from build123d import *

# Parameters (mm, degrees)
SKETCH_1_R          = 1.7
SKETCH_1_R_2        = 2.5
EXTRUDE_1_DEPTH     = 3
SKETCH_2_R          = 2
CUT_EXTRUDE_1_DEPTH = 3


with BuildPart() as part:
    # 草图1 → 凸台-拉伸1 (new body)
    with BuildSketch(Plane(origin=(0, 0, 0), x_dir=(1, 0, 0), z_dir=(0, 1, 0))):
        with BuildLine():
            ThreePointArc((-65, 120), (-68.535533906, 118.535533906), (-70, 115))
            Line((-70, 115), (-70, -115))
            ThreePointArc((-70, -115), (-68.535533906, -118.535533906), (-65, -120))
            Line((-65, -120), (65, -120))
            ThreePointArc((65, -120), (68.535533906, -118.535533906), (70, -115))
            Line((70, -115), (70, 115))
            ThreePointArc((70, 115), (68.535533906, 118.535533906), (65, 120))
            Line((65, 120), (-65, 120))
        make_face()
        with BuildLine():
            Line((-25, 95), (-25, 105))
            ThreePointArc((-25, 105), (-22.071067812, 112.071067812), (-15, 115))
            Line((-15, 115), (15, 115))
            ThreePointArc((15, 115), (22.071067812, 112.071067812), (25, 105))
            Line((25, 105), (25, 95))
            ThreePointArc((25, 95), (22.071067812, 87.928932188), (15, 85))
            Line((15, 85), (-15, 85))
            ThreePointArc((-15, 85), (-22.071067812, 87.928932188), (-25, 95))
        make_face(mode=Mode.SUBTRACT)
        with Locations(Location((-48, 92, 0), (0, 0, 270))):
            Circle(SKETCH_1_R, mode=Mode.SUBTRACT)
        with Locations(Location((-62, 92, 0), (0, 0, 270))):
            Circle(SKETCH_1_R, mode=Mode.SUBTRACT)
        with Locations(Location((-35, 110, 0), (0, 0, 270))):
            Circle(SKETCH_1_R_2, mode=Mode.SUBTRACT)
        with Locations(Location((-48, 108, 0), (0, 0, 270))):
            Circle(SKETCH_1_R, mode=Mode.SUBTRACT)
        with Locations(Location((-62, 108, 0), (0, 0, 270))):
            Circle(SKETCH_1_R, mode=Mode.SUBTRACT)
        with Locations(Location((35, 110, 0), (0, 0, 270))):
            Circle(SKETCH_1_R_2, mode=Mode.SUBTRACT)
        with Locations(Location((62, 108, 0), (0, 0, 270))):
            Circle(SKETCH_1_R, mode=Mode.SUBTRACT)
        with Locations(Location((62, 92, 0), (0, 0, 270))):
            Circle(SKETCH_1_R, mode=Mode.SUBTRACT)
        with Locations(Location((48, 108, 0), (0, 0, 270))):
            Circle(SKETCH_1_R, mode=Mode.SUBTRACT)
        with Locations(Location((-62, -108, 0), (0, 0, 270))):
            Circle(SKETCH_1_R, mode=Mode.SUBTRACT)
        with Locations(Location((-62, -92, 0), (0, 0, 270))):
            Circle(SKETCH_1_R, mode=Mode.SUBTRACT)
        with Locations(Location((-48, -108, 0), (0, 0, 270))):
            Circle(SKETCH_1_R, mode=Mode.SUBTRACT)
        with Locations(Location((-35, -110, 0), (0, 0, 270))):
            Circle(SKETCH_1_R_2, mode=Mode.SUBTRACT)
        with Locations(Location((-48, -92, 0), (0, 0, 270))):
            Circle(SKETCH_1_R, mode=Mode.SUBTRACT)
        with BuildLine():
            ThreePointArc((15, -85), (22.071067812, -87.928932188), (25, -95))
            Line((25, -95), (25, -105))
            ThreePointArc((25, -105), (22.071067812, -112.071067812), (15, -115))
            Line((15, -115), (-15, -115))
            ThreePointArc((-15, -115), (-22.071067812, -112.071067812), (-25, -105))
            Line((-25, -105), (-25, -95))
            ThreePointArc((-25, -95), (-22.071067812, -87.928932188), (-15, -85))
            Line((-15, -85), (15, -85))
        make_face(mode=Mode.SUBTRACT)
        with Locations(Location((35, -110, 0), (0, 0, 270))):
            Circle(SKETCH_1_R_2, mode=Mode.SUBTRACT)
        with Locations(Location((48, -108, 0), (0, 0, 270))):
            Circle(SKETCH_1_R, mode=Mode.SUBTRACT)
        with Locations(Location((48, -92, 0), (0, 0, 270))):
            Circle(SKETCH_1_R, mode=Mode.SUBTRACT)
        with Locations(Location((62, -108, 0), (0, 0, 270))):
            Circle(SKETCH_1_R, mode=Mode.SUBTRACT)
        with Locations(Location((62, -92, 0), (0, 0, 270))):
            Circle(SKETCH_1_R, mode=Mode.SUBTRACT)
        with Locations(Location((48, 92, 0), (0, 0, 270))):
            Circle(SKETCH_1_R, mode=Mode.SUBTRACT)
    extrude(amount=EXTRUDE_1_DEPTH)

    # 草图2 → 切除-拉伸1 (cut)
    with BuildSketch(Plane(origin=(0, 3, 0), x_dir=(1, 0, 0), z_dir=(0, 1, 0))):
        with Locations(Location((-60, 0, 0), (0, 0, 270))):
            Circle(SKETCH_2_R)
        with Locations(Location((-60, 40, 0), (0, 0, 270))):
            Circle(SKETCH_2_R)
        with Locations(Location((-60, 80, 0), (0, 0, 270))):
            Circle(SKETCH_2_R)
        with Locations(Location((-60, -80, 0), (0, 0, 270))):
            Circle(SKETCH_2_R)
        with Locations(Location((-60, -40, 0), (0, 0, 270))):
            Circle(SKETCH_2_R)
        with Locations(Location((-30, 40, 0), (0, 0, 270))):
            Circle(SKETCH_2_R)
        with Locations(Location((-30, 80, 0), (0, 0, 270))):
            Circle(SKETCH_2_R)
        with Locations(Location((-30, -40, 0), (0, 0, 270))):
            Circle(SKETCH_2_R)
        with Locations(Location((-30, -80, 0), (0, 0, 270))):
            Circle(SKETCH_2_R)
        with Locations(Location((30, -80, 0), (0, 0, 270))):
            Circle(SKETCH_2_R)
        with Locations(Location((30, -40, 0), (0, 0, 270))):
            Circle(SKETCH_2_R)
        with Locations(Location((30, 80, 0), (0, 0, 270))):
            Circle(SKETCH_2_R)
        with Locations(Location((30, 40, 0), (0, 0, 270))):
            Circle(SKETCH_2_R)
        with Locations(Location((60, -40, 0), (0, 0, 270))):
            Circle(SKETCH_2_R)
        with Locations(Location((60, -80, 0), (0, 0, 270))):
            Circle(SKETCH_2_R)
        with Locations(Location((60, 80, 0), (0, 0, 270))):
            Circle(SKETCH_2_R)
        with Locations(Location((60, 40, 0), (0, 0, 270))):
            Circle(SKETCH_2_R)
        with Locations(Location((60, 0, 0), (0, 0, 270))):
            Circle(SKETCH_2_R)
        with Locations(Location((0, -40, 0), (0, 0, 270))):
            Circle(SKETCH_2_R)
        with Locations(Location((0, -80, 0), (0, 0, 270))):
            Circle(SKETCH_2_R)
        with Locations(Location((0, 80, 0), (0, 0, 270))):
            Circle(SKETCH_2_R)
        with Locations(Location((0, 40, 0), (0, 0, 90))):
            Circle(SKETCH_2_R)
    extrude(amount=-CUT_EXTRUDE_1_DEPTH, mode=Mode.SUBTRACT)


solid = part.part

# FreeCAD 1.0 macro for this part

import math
import FreeCAD as App
import Part
import Sketcher
from FreeCAD import Vector

doc = App.newDocument("Part")
body = doc.addObject("PartDesign::Body", "Body")

sketch1 = body.newObject("Sketcher::SketchObject", "Sketch")
sketch1.AttachmentSupport = (doc.getObject("XZ_Plane"), [""])
sketch1.MapMode = "FlatFace"
sketch1.addGeometry([
    Part.ArcOfCircle(Part.Circle(Vector(-65, -115, 0), Vector(0, 0, 1), 5), math.radians(180), math.radians(270)),
    Part.LineSegment(Vector(-70, -115, 0), Vector(-70, 115, 0)),
    Part.ArcOfCircle(Part.Circle(Vector(-65, 115, 0), Vector(0, 0, 1), 5), math.radians(90), math.radians(180)),
    Part.LineSegment(Vector(-65, 120, 0), Vector(65, 120, 0)),
    Part.ArcOfCircle(Part.Circle(Vector(65, 115, 0), Vector(0, 0, 1), 5), math.radians(0), math.radians(90)),
    Part.LineSegment(Vector(70, 115, 0), Vector(70, -115, 0)),
    Part.ArcOfCircle(Part.Circle(Vector(65, -115, 0), Vector(0, 0, 1), 5), math.radians(-90), math.radians(0)),
    Part.LineSegment(Vector(65, -120, 0), Vector(-65, -120, 0)),
    Part.Circle(Vector(-62, 108, 0), Vector(0, 0, 1), 1.7),
    Part.Circle(Vector(-48, 108, 0), Vector(0, 0, 1), 1.7),
    Part.Circle(Vector(-62, 92, 0), Vector(0, 0, 1), 1.7),
    Part.Circle(Vector(-48, 92, 0), Vector(0, 0, 1), 1.7),
    Part.Circle(Vector(-35, 110, 0), Vector(0, 0, 1), 2.5),
    Part.LineSegment(Vector(-15, 85, 0), Vector(15, 85, 0)),
    Part.ArcOfCircle(Part.Circle(Vector(15, 95, 0), Vector(0, 0, 1), 10), math.radians(-90), math.radians(0)),
    Part.LineSegment(Vector(25, 95, 0), Vector(25, 105, 0)),
    Part.ArcOfCircle(Part.Circle(Vector(15, 105, 0), Vector(0, 0, 1), 10), math.radians(0), math.radians(90)),
    Part.LineSegment(Vector(15, 115, 0), Vector(-15, 115, 0)),
    Part.ArcOfCircle(Part.Circle(Vector(-15, 105, 0), Vector(0, 0, 1), 10), math.radians(90), math.radians(180)),
    Part.LineSegment(Vector(-25, 105, 0), Vector(-25, 95, 0)),
    Part.ArcOfCircle(Part.Circle(Vector(-15, 95, 0), Vector(0, 0, 1), 10), math.radians(180), math.radians(270)),
    Part.Circle(Vector(35, 110, 0), Vector(0, 0, 1), 2.5),
    Part.Circle(Vector(48, 108, 0), Vector(0, 0, 1), 1.7),
    Part.Circle(Vector(62, 108, 0), Vector(0, 0, 1), 1.7),
    Part.Circle(Vector(48, 92, 0), Vector(0, 0, 1), 1.7),
    Part.Circle(Vector(62, 92, 0), Vector(0, 0, 1), 1.7),
    Part.Circle(Vector(-62, -92, 0), Vector(0, 0, 1), 1.7),
    Part.Circle(Vector(-48, -92, 0), Vector(0, 0, 1), 1.7),
    Part.Circle(Vector(-62, -108, 0), Vector(0, 0, 1), 1.7),
    Part.Circle(Vector(-48, -108, 0), Vector(0, 0, 1), 1.7),
    Part.Circle(Vector(-35, -110, 0), Vector(0, 0, 1), 2.5),
    Part.ArcOfCircle(Part.Circle(Vector(-15, -95, 0), Vector(0, 0, 1), 10), math.radians(90), math.radians(180)),
    Part.LineSegment(Vector(-25, -95, 0), Vector(-25, -105, 0)),
    Part.ArcOfCircle(Part.Circle(Vector(-15, -105, 0), Vector(0, 0, 1), 10), math.radians(180), math.radians(270)),
    Part.LineSegment(Vector(-15, -115, 0), Vector(15, -115, 0)),
    Part.ArcOfCircle(Part.Circle(Vector(15, -105, 0), Vector(0, 0, 1), 10), math.radians(-90), math.radians(0)),
    Part.LineSegment(Vector(25, -105, 0), Vector(25, -95, 0)),
    Part.ArcOfCircle(Part.Circle(Vector(15, -95, 0), Vector(0, 0, 1), 10), math.radians(0), math.radians(90)),
    Part.LineSegment(Vector(15, -85, 0), Vector(-15, -85, 0)),
    Part.Circle(Vector(35, -110, 0), Vector(0, 0, 1), 2.5),
    Part.Circle(Vector(48, -92, 0), Vector(0, 0, 1), 1.7),
    Part.Circle(Vector(62, -92, 0), Vector(0, 0, 1), 1.7),
    Part.Circle(Vector(48, -108, 0), Vector(0, 0, 1), 1.7),
    Part.Circle(Vector(62, -108, 0), Vector(0, 0, 1), 1.7),
], False)
sketch1.addConstraint([
    Sketcher.Constraint("Tangent", 0, 1, 1, 1),
    Sketcher.Constraint("Tangent", 1, 2, 2, 2),
    Sketcher.Constraint("Tangent", 2, 1, 3, 1),
    Sketcher.Constraint("Tangent", 3, 2, 4, 2),
    Sketcher.Constraint("Tangent", 4, 1, 5, 1),
    Sketcher.Constraint("Tangent", 5, 2, 6, 2),
    Sketcher.Constraint("Tangent", 6, 1, 7, 1),
    Sketcher.Constraint("Tangent", 7, 2, 0, 2),
    Sketcher.Constraint("Tangent", 13, 2, 14, 1),
    Sketcher.Constraint("Tangent", 14, 2, 15, 1),
    Sketcher.Constraint("Tangent", 15, 2, 16, 1),
    Sketcher.Constraint("Tangent", 16, 2, 17, 1),
    Sketcher.Constraint("Tangent", 17, 2, 18, 1),
    Sketcher.Constraint("Tangent", 18, 2, 19, 1),
    Sketcher.Constraint("Tangent", 19, 2, 20, 1),
    Sketcher.Constraint("Tangent", 20, 2, 13, 1),
    Sketcher.Constraint("Tangent", 31, 2, 32, 1),
    Sketcher.Constraint("Tangent", 32, 2, 33, 1),
    Sketcher.Constraint("Tangent", 33, 2, 34, 1),
    Sketcher.Constraint("Tangent", 34, 2, 35, 1),
    Sketcher.Constraint("Tangent", 35, 2, 36, 1),
    Sketcher.Constraint("Tangent", 36, 2, 37, 1),
    Sketcher.Constraint("Tangent", 37, 2, 38, 1),
    Sketcher.Constraint("Tangent", 38, 2, 31, 1),
    Sketcher.Constraint("Vertical", 1),
    Sketcher.Constraint("Horizontal", 3),
    Sketcher.Constraint("Vertical", 5),
    Sketcher.Constraint("Horizontal", 7),
    Sketcher.Constraint("Horizontal", 13),
    Sketcher.Constraint("Vertical", 15),
    Sketcher.Constraint("Horizontal", 17),
    Sketcher.Constraint("Vertical", 19),
    Sketcher.Constraint("Vertical", 32),
    Sketcher.Constraint("Horizontal", 34),
    Sketcher.Constraint("Vertical", 36),
    Sketcher.Constraint("Horizontal", 38),
    Sketcher.Constraint("Equal", 0, 2),
    Sketcher.Constraint("Equal", 2, 4),
    Sketcher.Constraint("Equal", 4, 6),
    Sketcher.Constraint("Equal", 8, 9),
    Sketcher.Constraint("Equal", 9, 10),
    Sketcher.Constraint("Equal", 10, 11),
    Sketcher.Constraint("Equal", 14, 16),
    Sketcher.Constraint("Equal", 16, 18),
    Sketcher.Constraint("Equal", 18, 20),
    Sketcher.Constraint("Equal", 12, 21),
    Sketcher.Constraint("Equal", 11, 22),
    Sketcher.Constraint("Equal", 22, 23),
    Sketcher.Constraint("Equal", 23, 24),
    Sketcher.Constraint("Equal", 24, 25),
    Sketcher.Constraint("Equal", 25, 26),
    Sketcher.Constraint("Equal", 26, 27),
    Sketcher.Constraint("Equal", 27, 28),
    Sketcher.Constraint("Equal", 28, 29),
    Sketcher.Constraint("Equal", 21, 30),
    Sketcher.Constraint("Equal", 20, 31),
    Sketcher.Constraint("Equal", 31, 33),
    Sketcher.Constraint("Equal", 33, 35),
    Sketcher.Constraint("Equal", 35, 37),
    Sketcher.Constraint("Equal", 30, 39),
    Sketcher.Constraint("Equal", 29, 40),
    Sketcher.Constraint("Equal", 40, 41),
    Sketcher.Constraint("Equal", 41, 42),
    Sketcher.Constraint("Equal", 42, 43),
    Sketcher.Constraint("Symmetric", 0, 3, 4, 3, -1, 1),
    Sketcher.Constraint("Symmetric", 25, 3, 26, 3, -1, 1),
    Sketcher.Constraint("Symmetric", 24, 3, 27, 3, -1, 1),
    Sketcher.Constraint("Symmetric", 23, 3, 28, 3, -1, 1),
    Sketcher.Constraint("Symmetric", 22, 3, 29, 3, -1, 1),
    Sketcher.Constraint("Symmetric", 21, 3, 30, 3, -1, 1),
    Sketcher.Constraint("Symmetric", 14, 3, 31, 3, -1, 1),
    Sketcher.Constraint("Symmetric", 18, 3, 35, 3, -1, 1),
    Sketcher.Constraint("Symmetric", 12, 3, 39, 3, -1, 1),
    Sketcher.Constraint("Symmetric", 11, 3, 40, 3, -1, 1),
    Sketcher.Constraint("Symmetric", 10, 3, 41, 3, -1, 1),
    Sketcher.Constraint("Symmetric", 9, 3, 42, 3, -1, 1),
    Sketcher.Constraint("Symmetric", 8, 3, 43, 3, -1, 1),
    Sketcher.Constraint("Symmetric", 12, 3, 21, 3, -2),
    Sketcher.Constraint("Symmetric", 9, 3, 22, 3, -2),
    Sketcher.Constraint("Symmetric", 8, 3, 23, 3, -2),
    Sketcher.Constraint("Symmetric", 11, 3, 24, 3, -2),
    Sketcher.Constraint("Symmetric", 10, 3, 25, 3, -2),
    Sketcher.Constraint("Horizontal", 8, 3, 9, 3),
    Sketcher.Constraint("Horizontal", 10, 3, 11, 3),
    Sketcher.Constraint("Horizontal", 4, 1, 16, 2),
    Sketcher.Constraint("Vertical", 8, 3, 10, 3),
    Sketcher.Constraint("Vertical", 9, 3, 11, 3),
    Sketcher.Constraint("Vertical", 20, 3, 31, 3),
    Sketcher.Constraint("Diameter", 12, 5.0),
    Sketcher.Constraint("Radius", 0, 5.0),
    Sketcher.Constraint("Radius", 14, 10.0),
    Sketcher.Constraint("Diameter", 8, 3.4),
    Sketcher.Constraint("DistanceX", 3, 1, 3, 2, 130.0),
    Sketcher.Constraint("DistanceX", 13, 1, 13, 2, 30.0),
    Sketcher.Constraint("DistanceY", 1, 1, 1, 2, 230.0),
    Sketcher.Constraint("DistanceY", 15, 1, 15, 2, 10.0),
    Sketcher.Constraint("DistanceX", 8, 3, -1, 1, 62.0),
    Sketcher.Constraint("DistanceY", -1, 1, 8, 3, 108.0),
    Sketcher.Constraint("DistanceX", 9, 3, -1, 1, 48.0),
    Sketcher.Constraint("DistanceY", -1, 1, 10, 3, 92.0),
    Sketcher.Constraint("DistanceX", 12, 3, -1, 1, 35.0),
    Sketcher.Constraint("DistanceY", -1, 1, 12, 3, 110.0),
])
pad1 = body.newObject("PartDesign::Pad", "Pad")
pad1.Profile = sketch1
pad1.Length = 3
pad1.Reversed = True

sketch2 = body.newObject("Sketcher::SketchObject", "Sketch001")
sketch2.AttachmentSupport = (doc.getObject("XZ_Plane"), [""])
sketch2.MapMode = "FlatFace"
sketch2.AttachmentOffset = App.Placement(Vector(0, 0, -3), App.Rotation())
sketch2.addGeometry([
    Part.Circle(Vector(-60, 0, 0), Vector(0, 0, 1), 2),
    Part.Circle(Vector(-60, -40, 0), Vector(0, 0, 1), 2),
    Part.Circle(Vector(-60, -80, 0), Vector(0, 0, 1), 2),
    Part.Circle(Vector(-60, 80, 0), Vector(0, 0, 1), 2),
    Part.Circle(Vector(-60, 40, 0), Vector(0, 0, 1), 2),
    Part.Circle(Vector(-30, -40, 0), Vector(0, 0, 1), 2),
    Part.Circle(Vector(-30, -80, 0), Vector(0, 0, 1), 2),
    Part.Circle(Vector(-30, 40, 0), Vector(0, 0, 1), 2),
    Part.Circle(Vector(-30, 80, 0), Vector(0, 0, 1), 2),
    Part.Circle(Vector(30, 80, 0), Vector(0, 0, 1), 2),
    Part.Circle(Vector(30, 40, 0), Vector(0, 0, 1), 2),
    Part.Circle(Vector(30, -80, 0), Vector(0, 0, 1), 2),
    Part.Circle(Vector(30, -40, 0), Vector(0, 0, 1), 2),
    Part.Circle(Vector(60, 40, 0), Vector(0, 0, 1), 2),
    Part.Circle(Vector(60, 80, 0), Vector(0, 0, 1), 2),
    Part.Circle(Vector(60, -80, 0), Vector(0, 0, 1), 2),
    Part.Circle(Vector(60, -40, 0), Vector(0, 0, 1), 2),
    Part.Circle(Vector(60, 0, 0), Vector(0, 0, 1), 2),
    Part.Circle(Vector(0, 40, 0), Vector(0, 0, 1), 2),
    Part.Circle(Vector(0, 80, 0), Vector(0, 0, 1), 2),
    Part.Circle(Vector(0, -80, 0), Vector(0, 0, 1), 2),
    Part.Circle(Vector(0, -40, 0), Vector(0, 0, 1), 2),
], False)
sketch2.addConstraint([
    Sketcher.Constraint("Equal", 0, 1),
    Sketcher.Constraint("Equal", 1, 2),
    Sketcher.Constraint("Equal", 2, 3),
    Sketcher.Constraint("Equal", 3, 4),
    Sketcher.Constraint("Equal", 4, 5),
    Sketcher.Constraint("Equal", 5, 6),
    Sketcher.Constraint("Equal", 6, 7),
    Sketcher.Constraint("Equal", 7, 8),
    Sketcher.Constraint("Equal", 8, 9),
    Sketcher.Constraint("Equal", 9, 10),
    Sketcher.Constraint("Equal", 10, 11),
    Sketcher.Constraint("Equal", 11, 12),
    Sketcher.Constraint("Equal", 12, 13),
    Sketcher.Constraint("Equal", 13, 14),
    Sketcher.Constraint("Equal", 14, 15),
    Sketcher.Constraint("Equal", 15, 16),
    Sketcher.Constraint("Equal", 16, 17),
    Sketcher.Constraint("Equal", 17, 18),
    Sketcher.Constraint("Equal", 18, 19),
    Sketcher.Constraint("Equal", 19, 20),
    Sketcher.Constraint("Equal", 20, 21),
    Sketcher.Constraint("Symmetric", 6, 3, 9, 3, -1, 1),
    Sketcher.Constraint("Symmetric", 5, 3, 10, 3, -1, 1),
    Sketcher.Constraint("Symmetric", 8, 3, 11, 3, -1, 1),
    Sketcher.Constraint("Symmetric", 7, 3, 12, 3, -1, 1),
    Sketcher.Constraint("Symmetric", 1, 3, 13, 3, -1, 1),
    Sketcher.Constraint("Symmetric", 2, 3, 14, 3, -1, 1),
    Sketcher.Constraint("Symmetric", 3, 3, 15, 3, -1, 1),
    Sketcher.Constraint("Symmetric", 4, 3, 16, 3, -1, 1),
    Sketcher.Constraint("Symmetric", 0, 3, 17, 3, -1, 1),
    Sketcher.Constraint("Symmetric", 19, 3, 20, 3, -1, 1),
    Sketcher.Constraint("Symmetric", 18, 3, 21, 3, -1, 1),
    Sketcher.Constraint("Symmetric", 8, 3, 9, 3, -2),
    Sketcher.Constraint("Symmetric", 7, 3, 10, 3, -2),
    Sketcher.Constraint("Symmetric", 4, 3, 13, 3, -2),
    Sketcher.Constraint("Symmetric", 3, 3, 14, 3, -2),
    Sketcher.Constraint("PointOnObject", 0, 3, -1),
    Sketcher.Constraint("PointOnObject", 18, 3, -2),
    Sketcher.Constraint("PointOnObject", 19, 3, -2),
    Sketcher.Constraint("Horizontal", 1, 3, 5, 3),
    Sketcher.Constraint("Horizontal", 2, 3, 6, 3),
    Sketcher.Constraint("Horizontal", 13, 3, 18, 3),
    Sketcher.Constraint("Horizontal", 14, 3, 19, 3),
    Sketcher.Constraint("Vertical", 0, 3, 1, 3),
    Sketcher.Constraint("Vertical", 1, 3, 2, 3),
    Sketcher.Constraint("Vertical", 5, 3, 6, 3),
    Sketcher.Constraint("Diameter", 0, 4.0),
    Sketcher.Constraint("DistanceX", 0, 3, -1, 1, 60.0),
    Sketcher.Constraint("DistanceY", 1, 3, -1, 1, 40.0),
    Sketcher.Constraint("DistanceY", 2, 3, -1, 1, 80.0),
    Sketcher.Constraint("DistanceX", 5, 3, -1, 1, 30.0),
])
pocket1 = body.newObject("PartDesign::Pocket", "Pocket")
pocket1.Profile = sketch2
pocket1.Length = 3
pocket1.Reversed = True

doc.recompute()
